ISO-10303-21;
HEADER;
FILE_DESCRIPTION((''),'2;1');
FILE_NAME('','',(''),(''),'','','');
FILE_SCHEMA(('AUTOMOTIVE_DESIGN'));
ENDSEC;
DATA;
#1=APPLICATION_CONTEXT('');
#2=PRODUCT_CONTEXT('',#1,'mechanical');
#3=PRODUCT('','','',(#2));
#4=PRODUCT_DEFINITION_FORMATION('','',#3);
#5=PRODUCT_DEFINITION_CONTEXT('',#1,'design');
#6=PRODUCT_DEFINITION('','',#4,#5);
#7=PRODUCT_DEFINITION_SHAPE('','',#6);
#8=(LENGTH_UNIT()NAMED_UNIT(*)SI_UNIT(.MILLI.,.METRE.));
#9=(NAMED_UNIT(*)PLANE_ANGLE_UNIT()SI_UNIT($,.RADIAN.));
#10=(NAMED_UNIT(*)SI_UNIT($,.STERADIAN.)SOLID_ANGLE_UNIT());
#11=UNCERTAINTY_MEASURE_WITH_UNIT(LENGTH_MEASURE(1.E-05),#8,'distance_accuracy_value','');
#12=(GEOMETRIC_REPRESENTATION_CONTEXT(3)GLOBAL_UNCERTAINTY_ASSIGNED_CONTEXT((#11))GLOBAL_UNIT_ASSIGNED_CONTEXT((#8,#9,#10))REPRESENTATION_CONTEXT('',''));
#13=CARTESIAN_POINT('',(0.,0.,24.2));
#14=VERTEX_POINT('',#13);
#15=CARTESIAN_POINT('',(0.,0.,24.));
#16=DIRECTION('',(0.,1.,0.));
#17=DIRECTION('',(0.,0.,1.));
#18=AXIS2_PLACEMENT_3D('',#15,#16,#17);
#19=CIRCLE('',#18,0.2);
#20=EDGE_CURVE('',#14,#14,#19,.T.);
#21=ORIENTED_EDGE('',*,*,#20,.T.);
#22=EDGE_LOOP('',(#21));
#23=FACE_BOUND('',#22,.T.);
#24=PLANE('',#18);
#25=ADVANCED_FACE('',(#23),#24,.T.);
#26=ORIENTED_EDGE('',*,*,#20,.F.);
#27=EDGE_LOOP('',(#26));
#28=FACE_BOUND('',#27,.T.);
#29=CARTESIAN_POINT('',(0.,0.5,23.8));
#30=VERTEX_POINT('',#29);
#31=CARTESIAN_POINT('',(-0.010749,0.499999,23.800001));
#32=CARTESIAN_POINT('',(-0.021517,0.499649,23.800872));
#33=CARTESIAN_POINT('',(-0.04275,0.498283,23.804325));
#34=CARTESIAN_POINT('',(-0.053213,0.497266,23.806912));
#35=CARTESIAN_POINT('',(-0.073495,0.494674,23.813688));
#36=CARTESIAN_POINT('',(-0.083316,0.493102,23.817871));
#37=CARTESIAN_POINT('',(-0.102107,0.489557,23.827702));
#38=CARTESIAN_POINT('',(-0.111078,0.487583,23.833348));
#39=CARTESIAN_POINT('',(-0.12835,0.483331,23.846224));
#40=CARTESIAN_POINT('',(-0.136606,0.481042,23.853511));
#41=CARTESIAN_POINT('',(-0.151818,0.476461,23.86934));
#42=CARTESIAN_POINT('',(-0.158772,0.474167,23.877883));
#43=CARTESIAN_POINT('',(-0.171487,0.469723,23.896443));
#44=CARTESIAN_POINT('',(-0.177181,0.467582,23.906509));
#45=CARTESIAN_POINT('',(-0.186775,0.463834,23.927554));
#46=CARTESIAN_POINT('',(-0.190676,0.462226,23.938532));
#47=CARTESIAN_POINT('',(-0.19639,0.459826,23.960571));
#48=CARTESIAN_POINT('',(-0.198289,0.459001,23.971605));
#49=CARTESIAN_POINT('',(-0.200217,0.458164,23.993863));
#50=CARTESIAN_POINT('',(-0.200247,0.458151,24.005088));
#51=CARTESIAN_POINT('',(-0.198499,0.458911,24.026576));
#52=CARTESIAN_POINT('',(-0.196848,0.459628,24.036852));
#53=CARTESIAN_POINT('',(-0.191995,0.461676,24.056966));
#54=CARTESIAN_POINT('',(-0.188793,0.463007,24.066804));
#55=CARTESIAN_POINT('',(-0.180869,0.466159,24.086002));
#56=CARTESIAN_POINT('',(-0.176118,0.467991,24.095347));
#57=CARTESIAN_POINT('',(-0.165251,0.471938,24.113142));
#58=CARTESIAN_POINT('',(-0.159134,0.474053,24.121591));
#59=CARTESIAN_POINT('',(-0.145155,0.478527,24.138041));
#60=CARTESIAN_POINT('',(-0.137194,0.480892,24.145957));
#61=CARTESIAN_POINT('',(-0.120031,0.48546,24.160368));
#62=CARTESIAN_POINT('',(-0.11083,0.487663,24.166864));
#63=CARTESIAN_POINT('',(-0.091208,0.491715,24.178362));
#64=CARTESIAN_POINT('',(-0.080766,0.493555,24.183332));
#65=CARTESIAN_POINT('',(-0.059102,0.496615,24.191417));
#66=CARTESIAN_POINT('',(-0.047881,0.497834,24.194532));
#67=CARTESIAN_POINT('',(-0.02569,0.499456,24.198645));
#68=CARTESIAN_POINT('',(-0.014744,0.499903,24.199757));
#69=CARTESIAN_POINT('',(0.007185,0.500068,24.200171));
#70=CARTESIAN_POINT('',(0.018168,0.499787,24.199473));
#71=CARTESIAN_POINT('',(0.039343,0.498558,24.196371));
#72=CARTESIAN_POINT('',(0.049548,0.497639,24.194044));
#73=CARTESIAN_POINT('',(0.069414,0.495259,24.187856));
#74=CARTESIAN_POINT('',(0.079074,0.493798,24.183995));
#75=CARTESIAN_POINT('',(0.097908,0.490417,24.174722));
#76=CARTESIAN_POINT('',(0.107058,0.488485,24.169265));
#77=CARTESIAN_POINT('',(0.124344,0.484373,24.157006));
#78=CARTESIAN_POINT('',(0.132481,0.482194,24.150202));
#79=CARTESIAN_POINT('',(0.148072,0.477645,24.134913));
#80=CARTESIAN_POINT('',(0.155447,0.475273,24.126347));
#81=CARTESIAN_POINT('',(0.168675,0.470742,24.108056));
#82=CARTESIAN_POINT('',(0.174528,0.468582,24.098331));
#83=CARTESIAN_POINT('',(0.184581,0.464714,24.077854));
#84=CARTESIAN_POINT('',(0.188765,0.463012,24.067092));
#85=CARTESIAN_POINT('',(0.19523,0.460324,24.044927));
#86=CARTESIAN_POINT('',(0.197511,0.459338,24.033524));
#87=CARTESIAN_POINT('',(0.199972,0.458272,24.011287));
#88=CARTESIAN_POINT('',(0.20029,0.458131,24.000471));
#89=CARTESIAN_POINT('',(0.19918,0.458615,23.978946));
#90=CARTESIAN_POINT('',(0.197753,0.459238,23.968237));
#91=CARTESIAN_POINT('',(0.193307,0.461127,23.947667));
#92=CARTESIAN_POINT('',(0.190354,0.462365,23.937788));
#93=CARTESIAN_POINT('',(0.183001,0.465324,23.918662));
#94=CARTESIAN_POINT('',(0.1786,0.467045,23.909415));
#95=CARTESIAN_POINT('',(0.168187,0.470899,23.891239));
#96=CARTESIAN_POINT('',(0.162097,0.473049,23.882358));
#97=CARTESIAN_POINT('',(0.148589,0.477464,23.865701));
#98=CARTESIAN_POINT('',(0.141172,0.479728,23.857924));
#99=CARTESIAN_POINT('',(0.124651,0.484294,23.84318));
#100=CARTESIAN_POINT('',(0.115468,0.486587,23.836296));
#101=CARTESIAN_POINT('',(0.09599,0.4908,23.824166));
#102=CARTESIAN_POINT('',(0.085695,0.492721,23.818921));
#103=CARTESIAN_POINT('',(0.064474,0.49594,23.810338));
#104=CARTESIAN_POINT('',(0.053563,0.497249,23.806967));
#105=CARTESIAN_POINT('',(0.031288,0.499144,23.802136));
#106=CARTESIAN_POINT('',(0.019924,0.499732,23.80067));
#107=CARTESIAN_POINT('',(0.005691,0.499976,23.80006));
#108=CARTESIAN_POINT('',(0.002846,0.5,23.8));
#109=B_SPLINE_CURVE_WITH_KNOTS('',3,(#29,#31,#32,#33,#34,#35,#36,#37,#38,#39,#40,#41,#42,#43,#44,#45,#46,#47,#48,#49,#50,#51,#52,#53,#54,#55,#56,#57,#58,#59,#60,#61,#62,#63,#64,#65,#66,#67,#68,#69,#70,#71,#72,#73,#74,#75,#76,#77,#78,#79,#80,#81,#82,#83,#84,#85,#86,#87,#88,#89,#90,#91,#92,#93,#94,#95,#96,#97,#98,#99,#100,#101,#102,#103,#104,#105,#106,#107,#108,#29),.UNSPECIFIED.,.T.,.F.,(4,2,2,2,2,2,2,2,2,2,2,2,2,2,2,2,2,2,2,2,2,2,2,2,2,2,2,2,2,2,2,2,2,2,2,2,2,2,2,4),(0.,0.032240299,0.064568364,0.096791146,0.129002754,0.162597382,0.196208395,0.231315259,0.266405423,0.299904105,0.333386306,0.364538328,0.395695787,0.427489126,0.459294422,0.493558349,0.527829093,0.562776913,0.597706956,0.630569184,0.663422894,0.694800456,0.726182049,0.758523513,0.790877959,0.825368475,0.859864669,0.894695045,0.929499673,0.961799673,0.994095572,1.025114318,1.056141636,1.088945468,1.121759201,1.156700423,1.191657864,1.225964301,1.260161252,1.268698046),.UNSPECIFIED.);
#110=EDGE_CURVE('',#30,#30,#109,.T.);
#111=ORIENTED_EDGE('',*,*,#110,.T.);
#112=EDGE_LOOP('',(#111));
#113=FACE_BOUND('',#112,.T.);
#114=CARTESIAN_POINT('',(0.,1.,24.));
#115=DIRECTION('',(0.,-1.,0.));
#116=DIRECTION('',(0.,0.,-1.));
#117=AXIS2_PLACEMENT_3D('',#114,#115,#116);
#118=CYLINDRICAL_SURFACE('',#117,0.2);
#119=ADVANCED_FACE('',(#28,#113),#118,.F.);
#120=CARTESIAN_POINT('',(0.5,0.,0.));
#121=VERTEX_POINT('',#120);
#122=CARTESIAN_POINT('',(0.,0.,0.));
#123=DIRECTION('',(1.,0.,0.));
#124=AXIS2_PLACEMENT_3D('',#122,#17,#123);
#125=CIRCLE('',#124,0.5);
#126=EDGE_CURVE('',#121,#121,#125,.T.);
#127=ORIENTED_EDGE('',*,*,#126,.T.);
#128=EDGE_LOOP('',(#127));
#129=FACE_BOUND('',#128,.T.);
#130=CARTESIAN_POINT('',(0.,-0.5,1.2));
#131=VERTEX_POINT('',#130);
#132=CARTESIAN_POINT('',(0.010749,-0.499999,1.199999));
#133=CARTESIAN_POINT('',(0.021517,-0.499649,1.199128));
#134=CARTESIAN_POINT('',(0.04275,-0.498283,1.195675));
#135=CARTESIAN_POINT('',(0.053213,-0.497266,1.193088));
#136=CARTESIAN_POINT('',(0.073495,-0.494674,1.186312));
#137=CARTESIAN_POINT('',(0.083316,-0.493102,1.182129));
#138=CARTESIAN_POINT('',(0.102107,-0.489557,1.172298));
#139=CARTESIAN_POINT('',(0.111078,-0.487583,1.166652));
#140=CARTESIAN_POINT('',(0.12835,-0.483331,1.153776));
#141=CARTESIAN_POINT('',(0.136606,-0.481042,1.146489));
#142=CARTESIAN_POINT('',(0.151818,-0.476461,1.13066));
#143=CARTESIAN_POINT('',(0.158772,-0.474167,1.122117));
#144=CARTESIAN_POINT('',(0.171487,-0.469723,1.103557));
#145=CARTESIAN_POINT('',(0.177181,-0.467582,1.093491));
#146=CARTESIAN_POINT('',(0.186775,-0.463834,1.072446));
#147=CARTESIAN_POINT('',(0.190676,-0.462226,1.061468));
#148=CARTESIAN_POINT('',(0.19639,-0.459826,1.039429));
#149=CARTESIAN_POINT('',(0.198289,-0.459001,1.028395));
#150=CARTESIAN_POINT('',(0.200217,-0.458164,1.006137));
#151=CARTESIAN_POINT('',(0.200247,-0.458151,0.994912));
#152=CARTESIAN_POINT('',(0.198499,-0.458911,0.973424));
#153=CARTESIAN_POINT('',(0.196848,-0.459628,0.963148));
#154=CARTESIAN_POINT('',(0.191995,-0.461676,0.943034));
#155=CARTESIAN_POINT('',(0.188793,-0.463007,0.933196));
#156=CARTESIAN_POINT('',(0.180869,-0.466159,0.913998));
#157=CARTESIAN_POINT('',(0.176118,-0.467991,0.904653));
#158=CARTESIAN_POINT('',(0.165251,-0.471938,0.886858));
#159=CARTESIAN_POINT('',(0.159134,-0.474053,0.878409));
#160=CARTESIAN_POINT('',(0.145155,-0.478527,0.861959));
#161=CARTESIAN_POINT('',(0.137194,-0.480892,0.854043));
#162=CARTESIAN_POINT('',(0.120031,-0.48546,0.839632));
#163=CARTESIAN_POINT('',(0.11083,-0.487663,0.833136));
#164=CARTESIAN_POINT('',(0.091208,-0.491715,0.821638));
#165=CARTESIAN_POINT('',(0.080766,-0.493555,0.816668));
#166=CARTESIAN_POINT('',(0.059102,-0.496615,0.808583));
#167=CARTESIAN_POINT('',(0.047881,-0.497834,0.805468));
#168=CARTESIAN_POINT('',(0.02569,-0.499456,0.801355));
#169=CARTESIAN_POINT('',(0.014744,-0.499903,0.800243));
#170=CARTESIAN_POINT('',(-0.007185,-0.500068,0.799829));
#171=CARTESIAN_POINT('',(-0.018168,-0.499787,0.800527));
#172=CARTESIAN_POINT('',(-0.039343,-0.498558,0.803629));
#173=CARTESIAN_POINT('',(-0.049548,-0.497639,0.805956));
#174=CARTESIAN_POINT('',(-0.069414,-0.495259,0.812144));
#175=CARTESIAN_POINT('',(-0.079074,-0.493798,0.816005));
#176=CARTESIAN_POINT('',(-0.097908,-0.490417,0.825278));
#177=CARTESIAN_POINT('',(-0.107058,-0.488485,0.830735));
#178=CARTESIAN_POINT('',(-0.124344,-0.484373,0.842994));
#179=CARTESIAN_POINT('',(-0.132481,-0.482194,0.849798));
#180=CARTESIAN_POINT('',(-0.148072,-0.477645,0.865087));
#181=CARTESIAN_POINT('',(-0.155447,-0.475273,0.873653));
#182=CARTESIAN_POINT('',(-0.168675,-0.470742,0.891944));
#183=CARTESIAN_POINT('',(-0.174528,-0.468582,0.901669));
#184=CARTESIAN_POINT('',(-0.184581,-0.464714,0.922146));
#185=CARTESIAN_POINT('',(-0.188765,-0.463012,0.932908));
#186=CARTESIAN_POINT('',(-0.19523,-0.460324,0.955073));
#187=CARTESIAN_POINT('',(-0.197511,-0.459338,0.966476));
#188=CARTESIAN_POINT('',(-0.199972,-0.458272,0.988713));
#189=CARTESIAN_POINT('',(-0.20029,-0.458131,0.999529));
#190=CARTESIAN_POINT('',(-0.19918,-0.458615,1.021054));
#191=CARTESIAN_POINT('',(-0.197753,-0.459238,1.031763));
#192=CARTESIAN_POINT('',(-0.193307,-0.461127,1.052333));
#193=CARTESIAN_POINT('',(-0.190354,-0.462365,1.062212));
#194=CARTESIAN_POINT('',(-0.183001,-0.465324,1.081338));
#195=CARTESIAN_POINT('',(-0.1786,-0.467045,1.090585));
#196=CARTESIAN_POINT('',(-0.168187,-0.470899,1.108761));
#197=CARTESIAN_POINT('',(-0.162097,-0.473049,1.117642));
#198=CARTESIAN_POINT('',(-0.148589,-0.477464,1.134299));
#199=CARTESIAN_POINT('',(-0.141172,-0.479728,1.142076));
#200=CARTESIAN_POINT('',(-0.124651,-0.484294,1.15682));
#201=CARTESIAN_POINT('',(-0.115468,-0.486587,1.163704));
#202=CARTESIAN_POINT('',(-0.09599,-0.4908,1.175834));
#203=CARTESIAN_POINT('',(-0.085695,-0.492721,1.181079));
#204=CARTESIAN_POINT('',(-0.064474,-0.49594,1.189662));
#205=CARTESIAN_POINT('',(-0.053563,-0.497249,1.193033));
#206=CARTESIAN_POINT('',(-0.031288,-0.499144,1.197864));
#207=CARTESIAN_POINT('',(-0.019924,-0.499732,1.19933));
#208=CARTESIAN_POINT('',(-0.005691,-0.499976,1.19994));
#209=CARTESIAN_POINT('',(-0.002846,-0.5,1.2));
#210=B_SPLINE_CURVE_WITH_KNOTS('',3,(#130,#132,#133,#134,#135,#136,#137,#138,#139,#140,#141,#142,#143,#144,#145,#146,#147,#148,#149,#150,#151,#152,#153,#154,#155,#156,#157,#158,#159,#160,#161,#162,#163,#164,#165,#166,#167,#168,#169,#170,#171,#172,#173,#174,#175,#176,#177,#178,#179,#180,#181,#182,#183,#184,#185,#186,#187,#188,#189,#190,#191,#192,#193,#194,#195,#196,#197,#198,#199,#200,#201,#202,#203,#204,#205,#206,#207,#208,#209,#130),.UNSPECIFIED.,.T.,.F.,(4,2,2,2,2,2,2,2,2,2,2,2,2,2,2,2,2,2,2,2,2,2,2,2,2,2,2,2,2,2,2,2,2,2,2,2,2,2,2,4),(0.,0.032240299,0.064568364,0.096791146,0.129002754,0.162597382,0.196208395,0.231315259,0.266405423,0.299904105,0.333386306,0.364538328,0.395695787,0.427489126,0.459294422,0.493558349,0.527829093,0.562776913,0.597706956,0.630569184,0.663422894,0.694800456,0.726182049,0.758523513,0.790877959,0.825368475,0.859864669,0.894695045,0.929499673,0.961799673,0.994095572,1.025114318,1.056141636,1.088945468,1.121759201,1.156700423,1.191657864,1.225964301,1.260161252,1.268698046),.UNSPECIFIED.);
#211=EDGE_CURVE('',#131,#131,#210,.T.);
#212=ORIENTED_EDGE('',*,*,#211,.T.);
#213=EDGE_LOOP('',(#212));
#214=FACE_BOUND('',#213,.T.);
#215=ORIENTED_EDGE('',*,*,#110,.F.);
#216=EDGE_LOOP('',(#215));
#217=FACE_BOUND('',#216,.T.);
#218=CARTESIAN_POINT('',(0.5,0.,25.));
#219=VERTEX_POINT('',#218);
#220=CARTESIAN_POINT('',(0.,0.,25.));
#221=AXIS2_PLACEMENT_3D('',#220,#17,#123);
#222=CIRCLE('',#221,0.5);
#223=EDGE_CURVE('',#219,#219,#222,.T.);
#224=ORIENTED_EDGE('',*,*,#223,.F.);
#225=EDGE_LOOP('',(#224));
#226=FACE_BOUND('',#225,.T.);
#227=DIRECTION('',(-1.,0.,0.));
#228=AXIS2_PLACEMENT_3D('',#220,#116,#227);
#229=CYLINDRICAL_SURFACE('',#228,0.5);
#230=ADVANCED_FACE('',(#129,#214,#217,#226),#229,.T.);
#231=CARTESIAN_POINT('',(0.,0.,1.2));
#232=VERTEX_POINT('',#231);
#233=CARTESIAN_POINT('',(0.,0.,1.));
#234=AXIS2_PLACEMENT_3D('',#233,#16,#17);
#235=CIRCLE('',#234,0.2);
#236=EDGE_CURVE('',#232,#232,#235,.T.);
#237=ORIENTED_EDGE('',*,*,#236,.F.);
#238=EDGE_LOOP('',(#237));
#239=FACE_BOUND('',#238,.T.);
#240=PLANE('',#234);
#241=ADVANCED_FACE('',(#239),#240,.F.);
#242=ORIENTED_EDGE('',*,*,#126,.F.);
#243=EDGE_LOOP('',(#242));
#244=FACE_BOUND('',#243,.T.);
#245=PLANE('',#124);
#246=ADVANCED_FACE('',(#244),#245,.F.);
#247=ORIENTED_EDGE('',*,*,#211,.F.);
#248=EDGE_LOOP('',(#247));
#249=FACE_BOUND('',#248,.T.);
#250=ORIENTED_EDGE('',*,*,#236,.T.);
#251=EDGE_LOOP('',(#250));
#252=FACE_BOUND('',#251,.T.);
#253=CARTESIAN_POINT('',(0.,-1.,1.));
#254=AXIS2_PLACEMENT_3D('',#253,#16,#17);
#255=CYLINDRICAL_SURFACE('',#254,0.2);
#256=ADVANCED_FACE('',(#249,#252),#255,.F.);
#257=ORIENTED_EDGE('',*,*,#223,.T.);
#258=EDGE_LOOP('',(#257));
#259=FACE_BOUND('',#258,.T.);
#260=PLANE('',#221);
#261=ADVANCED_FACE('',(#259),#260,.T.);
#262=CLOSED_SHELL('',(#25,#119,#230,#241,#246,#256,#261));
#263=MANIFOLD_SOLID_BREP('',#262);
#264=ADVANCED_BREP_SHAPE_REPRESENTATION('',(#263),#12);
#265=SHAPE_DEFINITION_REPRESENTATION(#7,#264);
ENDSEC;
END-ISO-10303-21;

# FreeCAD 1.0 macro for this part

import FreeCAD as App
import Part
import Sketcher
Q = App.Units.Quantity

doc = App.newDocument("Part")
params = doc.addObject("Spreadsheet::Sheet", "Params")
for row, (alias, value) in enumerate([
    ("sketch1_diameter", "1 mm"),
    ("pad1_length", "25 mm"),
    ("sketch2_diameter", "0.4 mm"),
    ("pocket1_length", "1 mm"),
    ("sketch3_diameter", "0.4 mm"),
    ("pocket2_length", "1 mm"),
], start=1):
    params.set(f"A{row}", alias)
    params.set(f"B{row}", "=" + value)
    params.setAlias(f"B{row}", alias)

body = doc.addObject("PartDesign::Body", "Body")

sketch1 = body.newObject("Sketcher::SketchObject", "Sketch")
sketch1.AttachmentSupport = (doc.getObject("XY_Plane"), [""])
sketch1.MapMode = "FlatFace"
sketch1.addGeometry(Part.Circle(App.Vector(0, 0, 0), App.Vector(0, 0, 1), 0.5), False)
sketch1.addConstraint([
    Sketcher.Constraint("Coincident", 0, 3, -1, 1),
    Sketcher.Constraint("Diameter", 0, Q("1 mm")),
])
sketch1.setExpression("Constraints[1]", "Params.sketch1_diameter")
pad1 = body.newObject("PartDesign::Pad", "Pad")
pad1.Profile = sketch1
pad1.setExpression("Length", "Params.pad1_length")

sketch2 = body.newObject("Sketcher::SketchObject", "Sketch001")
sketch2.AttachmentSupport = (doc.getObject("XZ_Plane"), [""])
sketch2.MapMode = "FlatFace"
sketch2.addGeometry(Part.Circle(App.Vector(0, 1, 0), App.Vector(0, 0, 1), 0.2), False)
sketch2.addConstraint([
    Sketcher.Constraint("PointOnObject", 0, 3, -2),
    Sketcher.Constraint("Diameter", 0, Q("0.4 mm")),
    Sketcher.Constraint("DistanceY", -1, 1, 0, 3, Q("1 mm")),
])
sketch2.setExpression("Constraints[1]", "Params.sketch2_diameter")
pocket1 = body.newObject("PartDesign::Pocket", "Pocket")
pocket1.Profile = sketch2
pocket1.setExpression("Length", "Params.pocket1_length")
pocket1.Reversed = True

sketch3 = body.newObject("Sketcher::SketchObject", "Sketch002")
sketch3.AttachmentSupport = (doc.getObject("XZ_Plane"), [""])
sketch3.MapMode = "FlatFace"
sketch3.addGeometry(Part.Circle(App.Vector(0, 24, 0), App.Vector(0, 0, 1), 0.2), False)
sketch3.addConstraint([
    Sketcher.Constraint("PointOnObject", 0, 3, -2),
    Sketcher.Constraint("Diameter", 0, Q("0.4 mm")),
    Sketcher.Constraint("DistanceY", -1, 1, 0, 3, Q("24 mm")),
])
sketch3.setExpression("Constraints[1]", "Params.sketch3_diameter")
pocket2 = body.newObject("PartDesign::Pocket", "Pocket001")
pocket2.Profile = sketch3
pocket2.setExpression("Length", "Params.pocket2_length")

doc.recompute()
